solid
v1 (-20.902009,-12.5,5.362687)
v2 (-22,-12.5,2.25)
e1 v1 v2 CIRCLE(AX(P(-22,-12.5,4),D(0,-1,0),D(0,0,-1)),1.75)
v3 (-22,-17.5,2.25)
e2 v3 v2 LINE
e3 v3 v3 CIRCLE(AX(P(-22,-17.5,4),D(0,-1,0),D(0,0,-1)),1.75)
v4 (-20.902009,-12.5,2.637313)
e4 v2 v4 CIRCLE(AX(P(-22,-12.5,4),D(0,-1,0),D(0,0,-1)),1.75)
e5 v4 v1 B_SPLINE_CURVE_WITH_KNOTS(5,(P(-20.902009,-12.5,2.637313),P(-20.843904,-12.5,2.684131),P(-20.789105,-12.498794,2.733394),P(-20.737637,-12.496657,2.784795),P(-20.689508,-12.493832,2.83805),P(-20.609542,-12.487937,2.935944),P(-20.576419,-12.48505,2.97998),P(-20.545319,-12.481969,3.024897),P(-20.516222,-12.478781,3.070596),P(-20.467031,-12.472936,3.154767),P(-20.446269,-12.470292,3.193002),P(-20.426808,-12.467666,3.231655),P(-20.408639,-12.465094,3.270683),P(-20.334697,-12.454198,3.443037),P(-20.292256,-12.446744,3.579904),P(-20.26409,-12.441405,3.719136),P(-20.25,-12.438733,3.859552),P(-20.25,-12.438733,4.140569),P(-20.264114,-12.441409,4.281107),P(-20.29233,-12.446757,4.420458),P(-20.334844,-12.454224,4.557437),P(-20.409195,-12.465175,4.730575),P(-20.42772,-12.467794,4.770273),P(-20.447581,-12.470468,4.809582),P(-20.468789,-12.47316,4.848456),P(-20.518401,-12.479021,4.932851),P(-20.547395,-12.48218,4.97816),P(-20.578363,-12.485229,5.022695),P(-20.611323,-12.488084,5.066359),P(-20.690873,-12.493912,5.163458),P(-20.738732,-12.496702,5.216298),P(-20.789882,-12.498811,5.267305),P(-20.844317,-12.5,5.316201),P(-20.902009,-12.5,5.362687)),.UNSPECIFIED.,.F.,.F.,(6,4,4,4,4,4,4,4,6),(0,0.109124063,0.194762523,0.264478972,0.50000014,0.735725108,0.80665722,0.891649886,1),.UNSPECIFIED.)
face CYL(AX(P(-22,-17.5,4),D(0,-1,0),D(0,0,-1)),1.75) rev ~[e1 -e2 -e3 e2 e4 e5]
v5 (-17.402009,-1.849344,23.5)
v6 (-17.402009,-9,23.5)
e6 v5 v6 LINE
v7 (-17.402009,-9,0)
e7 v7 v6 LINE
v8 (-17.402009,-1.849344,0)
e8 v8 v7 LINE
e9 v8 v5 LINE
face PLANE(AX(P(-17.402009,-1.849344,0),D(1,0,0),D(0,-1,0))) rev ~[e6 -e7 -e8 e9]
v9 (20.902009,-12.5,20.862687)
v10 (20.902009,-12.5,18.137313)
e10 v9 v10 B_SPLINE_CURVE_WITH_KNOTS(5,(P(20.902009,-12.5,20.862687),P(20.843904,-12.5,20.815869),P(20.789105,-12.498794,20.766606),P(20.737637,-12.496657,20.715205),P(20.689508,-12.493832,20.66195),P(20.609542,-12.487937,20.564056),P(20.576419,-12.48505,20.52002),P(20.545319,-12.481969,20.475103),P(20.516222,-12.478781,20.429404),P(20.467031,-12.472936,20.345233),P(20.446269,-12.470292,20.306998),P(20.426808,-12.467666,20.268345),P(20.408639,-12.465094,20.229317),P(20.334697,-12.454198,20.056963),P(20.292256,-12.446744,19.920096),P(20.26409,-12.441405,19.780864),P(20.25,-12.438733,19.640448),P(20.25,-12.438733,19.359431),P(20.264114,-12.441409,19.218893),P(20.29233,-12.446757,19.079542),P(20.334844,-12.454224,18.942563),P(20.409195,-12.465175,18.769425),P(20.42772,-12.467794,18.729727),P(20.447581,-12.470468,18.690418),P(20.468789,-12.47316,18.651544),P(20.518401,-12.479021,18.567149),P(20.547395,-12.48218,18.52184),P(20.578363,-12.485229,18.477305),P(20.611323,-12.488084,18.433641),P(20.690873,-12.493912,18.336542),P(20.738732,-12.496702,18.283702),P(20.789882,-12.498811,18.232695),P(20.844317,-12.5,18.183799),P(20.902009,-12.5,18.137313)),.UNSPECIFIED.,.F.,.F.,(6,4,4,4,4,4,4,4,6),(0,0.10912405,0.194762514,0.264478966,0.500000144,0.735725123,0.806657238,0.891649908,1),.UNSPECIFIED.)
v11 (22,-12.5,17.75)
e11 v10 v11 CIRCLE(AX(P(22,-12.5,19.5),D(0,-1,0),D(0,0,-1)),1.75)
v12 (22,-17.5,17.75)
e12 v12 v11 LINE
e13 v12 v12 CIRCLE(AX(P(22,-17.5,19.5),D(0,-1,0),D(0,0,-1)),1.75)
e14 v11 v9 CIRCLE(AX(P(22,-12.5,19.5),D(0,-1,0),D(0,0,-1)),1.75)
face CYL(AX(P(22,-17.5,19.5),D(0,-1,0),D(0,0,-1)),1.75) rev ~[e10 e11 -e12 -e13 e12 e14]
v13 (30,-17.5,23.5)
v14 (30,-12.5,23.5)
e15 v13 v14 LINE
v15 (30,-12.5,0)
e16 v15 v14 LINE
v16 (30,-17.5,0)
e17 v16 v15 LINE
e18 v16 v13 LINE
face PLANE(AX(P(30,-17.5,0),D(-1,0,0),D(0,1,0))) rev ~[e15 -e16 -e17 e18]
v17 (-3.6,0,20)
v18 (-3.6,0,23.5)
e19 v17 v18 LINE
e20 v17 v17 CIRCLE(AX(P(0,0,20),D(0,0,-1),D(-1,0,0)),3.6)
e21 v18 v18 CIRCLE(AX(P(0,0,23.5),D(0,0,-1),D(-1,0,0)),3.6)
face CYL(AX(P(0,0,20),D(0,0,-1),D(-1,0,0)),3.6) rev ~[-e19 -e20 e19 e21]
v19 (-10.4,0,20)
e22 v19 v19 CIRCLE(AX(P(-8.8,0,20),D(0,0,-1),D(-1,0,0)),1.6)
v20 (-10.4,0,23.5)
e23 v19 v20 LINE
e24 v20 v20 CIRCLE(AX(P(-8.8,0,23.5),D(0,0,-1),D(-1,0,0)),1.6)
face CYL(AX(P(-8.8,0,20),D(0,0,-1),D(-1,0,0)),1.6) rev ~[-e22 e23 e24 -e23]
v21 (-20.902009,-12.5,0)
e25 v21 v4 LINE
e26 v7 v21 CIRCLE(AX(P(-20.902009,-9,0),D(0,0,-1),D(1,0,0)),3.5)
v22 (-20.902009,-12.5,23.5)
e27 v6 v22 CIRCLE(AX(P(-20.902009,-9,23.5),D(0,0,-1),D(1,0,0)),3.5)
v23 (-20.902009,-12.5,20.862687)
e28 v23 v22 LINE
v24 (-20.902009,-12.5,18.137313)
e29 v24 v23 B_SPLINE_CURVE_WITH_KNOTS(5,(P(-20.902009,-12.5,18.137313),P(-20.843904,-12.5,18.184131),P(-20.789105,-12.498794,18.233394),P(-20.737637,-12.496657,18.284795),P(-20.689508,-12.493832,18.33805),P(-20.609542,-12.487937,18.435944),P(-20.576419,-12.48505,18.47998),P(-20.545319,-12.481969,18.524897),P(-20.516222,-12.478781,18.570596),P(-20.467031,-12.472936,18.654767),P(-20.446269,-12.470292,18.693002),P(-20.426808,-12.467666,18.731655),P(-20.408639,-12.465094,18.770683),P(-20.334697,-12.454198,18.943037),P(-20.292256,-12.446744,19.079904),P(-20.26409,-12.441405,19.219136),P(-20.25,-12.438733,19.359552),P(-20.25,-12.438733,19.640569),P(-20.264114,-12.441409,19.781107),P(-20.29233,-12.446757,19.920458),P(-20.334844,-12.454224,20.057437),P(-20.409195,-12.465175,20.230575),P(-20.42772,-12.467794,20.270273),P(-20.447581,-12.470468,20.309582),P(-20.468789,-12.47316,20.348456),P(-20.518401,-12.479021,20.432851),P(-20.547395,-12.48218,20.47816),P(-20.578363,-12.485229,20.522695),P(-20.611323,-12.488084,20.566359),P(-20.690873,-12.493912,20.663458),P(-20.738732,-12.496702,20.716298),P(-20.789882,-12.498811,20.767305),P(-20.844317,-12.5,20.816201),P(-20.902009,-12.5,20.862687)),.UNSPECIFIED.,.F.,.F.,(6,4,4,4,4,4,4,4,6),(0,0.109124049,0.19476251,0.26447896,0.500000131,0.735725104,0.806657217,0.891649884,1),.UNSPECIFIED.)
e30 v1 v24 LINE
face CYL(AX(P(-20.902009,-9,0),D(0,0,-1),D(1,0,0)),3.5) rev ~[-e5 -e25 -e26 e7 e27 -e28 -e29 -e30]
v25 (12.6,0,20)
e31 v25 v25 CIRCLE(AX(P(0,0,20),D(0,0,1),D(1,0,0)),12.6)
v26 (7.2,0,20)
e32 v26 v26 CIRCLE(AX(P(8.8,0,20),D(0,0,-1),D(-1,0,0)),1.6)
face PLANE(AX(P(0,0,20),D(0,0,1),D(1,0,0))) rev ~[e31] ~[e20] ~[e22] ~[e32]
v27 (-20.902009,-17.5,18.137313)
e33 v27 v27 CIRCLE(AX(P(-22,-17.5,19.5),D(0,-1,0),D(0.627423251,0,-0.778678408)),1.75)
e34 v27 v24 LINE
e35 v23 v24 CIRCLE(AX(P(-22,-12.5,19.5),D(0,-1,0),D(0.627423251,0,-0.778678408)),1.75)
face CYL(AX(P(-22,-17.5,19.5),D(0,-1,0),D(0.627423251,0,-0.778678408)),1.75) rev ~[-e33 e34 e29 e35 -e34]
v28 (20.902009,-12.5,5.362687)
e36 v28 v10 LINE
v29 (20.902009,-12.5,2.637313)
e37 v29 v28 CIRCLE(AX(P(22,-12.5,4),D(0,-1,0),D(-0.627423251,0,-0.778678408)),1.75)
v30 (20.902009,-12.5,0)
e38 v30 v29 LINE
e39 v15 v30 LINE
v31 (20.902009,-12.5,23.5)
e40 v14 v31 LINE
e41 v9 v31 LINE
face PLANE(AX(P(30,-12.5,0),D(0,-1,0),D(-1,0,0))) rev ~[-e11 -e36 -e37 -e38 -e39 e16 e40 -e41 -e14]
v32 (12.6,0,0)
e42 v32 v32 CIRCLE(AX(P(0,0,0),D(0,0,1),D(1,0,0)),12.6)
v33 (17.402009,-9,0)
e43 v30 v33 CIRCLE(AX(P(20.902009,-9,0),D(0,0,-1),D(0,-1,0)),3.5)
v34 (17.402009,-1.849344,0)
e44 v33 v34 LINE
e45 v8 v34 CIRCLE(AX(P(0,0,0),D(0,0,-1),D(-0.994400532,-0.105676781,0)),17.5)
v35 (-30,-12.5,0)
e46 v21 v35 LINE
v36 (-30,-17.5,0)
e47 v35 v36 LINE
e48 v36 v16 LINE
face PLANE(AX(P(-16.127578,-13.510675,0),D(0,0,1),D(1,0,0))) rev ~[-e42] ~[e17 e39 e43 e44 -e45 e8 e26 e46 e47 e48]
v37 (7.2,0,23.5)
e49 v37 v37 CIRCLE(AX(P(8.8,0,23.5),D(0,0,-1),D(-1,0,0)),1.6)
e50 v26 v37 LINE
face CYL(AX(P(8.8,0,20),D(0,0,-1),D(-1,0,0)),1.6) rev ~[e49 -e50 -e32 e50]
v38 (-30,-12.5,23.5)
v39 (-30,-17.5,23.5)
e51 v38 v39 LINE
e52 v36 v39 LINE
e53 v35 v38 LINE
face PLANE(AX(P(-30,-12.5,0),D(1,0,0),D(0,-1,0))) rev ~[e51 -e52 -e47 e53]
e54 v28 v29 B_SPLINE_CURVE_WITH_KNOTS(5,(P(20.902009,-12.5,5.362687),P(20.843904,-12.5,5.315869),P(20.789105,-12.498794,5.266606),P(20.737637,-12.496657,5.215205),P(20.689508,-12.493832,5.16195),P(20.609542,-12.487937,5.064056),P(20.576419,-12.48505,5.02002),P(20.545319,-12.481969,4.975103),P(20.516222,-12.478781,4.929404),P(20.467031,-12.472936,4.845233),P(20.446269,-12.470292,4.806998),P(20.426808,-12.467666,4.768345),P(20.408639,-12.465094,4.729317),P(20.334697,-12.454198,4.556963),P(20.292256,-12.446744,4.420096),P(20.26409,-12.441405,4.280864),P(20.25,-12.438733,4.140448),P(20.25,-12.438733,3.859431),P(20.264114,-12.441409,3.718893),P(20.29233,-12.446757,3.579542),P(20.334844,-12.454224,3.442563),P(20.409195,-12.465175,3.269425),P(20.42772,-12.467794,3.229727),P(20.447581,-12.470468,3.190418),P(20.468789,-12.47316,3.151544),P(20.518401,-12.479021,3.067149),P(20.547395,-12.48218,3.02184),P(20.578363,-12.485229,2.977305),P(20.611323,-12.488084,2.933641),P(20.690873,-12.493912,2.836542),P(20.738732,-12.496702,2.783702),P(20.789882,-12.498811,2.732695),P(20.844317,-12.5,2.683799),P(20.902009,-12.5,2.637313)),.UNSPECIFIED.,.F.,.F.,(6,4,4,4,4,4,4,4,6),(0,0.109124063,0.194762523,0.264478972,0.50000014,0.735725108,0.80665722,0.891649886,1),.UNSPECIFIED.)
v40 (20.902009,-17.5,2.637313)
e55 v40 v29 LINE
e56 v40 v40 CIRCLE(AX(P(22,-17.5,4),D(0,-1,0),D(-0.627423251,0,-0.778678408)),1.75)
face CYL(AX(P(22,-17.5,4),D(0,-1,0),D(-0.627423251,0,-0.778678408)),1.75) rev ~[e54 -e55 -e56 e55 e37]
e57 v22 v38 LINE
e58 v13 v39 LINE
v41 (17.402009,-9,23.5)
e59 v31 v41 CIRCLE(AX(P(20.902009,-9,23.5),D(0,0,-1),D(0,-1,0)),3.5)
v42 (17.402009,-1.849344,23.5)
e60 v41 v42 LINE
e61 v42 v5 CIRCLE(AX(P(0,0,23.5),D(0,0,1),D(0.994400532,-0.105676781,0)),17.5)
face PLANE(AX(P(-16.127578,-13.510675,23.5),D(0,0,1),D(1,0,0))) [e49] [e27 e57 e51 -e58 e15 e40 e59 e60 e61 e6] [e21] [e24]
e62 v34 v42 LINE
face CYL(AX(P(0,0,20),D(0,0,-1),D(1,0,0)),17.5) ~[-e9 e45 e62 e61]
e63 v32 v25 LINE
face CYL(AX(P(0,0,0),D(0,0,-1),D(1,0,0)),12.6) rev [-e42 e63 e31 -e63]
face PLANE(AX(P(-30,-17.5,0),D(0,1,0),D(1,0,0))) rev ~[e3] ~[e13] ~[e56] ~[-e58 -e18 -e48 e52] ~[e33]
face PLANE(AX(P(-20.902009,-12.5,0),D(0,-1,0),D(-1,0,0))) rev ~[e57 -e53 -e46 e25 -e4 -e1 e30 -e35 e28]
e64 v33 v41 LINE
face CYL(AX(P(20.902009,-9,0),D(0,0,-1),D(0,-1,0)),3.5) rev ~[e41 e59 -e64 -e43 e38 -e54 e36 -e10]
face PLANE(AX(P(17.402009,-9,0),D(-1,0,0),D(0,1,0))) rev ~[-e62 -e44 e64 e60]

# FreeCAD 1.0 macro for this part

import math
import FreeCAD as App
import Part
import Sketcher

V = App.Vector
Q = App.Units.Quantity

doc = App.newDocument("Part")
body = doc.addObject("PartDesign::Body", "Body")

# Sketch on XY plane
sketch1 = body.newObject("Sketcher::SketchObject", "Sketch")
sketch1.AttachmentSupport = (doc.getObject("XY_Plane"), [""])
sketch1.MapMode = "FlatFace"
sketch1.addGeometry([
    Part.Circle(V(0, 0, 0), V(0, 0, 1), 18),
    Part.Circle(V(0, 0, 0), V(0, 0, 1), 13),
], False)
sketch1.addConstraint([
    Sketcher.Constraint("Coincident", 0, 3, -1, 1),
    Sketcher.Constraint("Coincident", 1, 3, -1, 1),
    Sketcher.Constraint("Diameter", 0, Q("35 mm")),
    Sketcher.Constraint("Diameter", 1, Q("25.2 mm")),
])
pad1 = body.newObject("PartDesign::Pad", "Pad")
pad1.Profile = sketch1
pad1.Length = 20

# Sketch on XY plane
sketch2 = body.newObject("Sketcher::SketchObject", "Sketch001")
sketch2.AttachmentSupport = (doc.getObject("XY_Plane"), [""])
sketch2.MapMode = "FlatFace"
sketch2.AttachmentOffset = App.Placement(V(0, 0, 20), App.Rotation())
sketch2.addGeometry(Part.Circle(V(0, 0, 0), V(0, 0, 1), 18), False)
sketch2.addConstraint([
    Sketcher.Constraint("Coincident", 0, 3, -1, 1),
    Sketcher.Constraint("Diameter", 0, Q("35 mm")),
])
pad2 = body.newObject("PartDesign::Pad", "Pad001")
pad2.Profile = sketch2
pad2.Length = 3.5

# Sketch on XY plane
sketch3 = body.newObject("Sketcher::SketchObject", "Sketch002")
sketch3.AttachmentSupport = (doc.getObject("XY_Plane"), [""])
sketch3.MapMode = "FlatFace"
sketch3.addGeometry([
    Part.LineSegment(V(-30, -12.5, 0), V(-30, -17.5, 0)),  # 0
    Part.LineSegment(V(-30, -17.5, 0), V(0, -17.5, 0)),  # 1
    Part.ArcOfCircle(Part.Circle(V(0, 0, 0), V(0, 0, 1), 17.5), math.radians(-174), math.radians(-90)),  # 2
    Part.LineSegment(V(-17.4, -1.8, 0), V(-17.4, -9, 0)),  # 3
    Part.ArcOfCircle(Part.Circle(V(-20.9, -9, 0), V(0, 0, 1), 3.5), math.radians(-90), math.radians(0)),  # 4
    Part.LineSegment(V(-20.9, -12.5, 0), V(-30, -12.5, 0)),  # 5
    Part.ArcOfCircle(Part.Circle(V(0, 0, 0), V(0, 0, 1), 17.5), math.radians(-90), math.radians(-6)),  # 6
    Part.LineSegment(V(0, -17.5, 0), V(30, -17.5, 0)),  # 7
    Part.LineSegment(V(30, -17.5, 0), V(30, -12.5, 0)),  # 8
    Part.LineSegment(V(30, -12.5, 0), V(20.9, -12.5, 0)),  # 9
    Part.ArcOfCircle(Part.Circle(V(20.9, -9, 0), V(0, 0, 1), 3.5), math.radians(-180), math.radians(-90)),  # 10
    Part.LineSegment(V(17.4, -9, 0), V(17.4, -1.8, 0)),  # 11
], False)
sketch3.addConstraint([
    Sketcher.Constraint("Coincident", 0, 2, 1, 1),
    Sketcher.Constraint("Tangent", 1, 2, 2, 2),
    Sketcher.Constraint("Coincident", 2, 1, 3, 1),
    Sketcher.Constraint("Tangent", 3, 2, 4, 2),
    Sketcher.Constraint("Tangent", 4, 1, 5, 1),
    Sketcher.Constraint("Coincident", 5, 2, 0, 1),
    Sketcher.Constraint("Tangent", 6, 1, 7, 1),
    Sketcher.Constraint("Coincident", 7, 2, 8, 1),
    Sketcher.Constraint("Coincident", 8, 2, 9, 1),
    Sketcher.Constraint("Tangent", 9, 2, 10, 2),
    Sketcher.Constraint("Tangent", 10, 1, 11, 1),
    Sketcher.Constraint("Coincident", 11, 2, 6, 2),
    Sketcher.Constraint("Vertical", 0),
    Sketcher.Constraint("Horizontal", 1),
    Sketcher.Constraint("Vertical", 3),
    Sketcher.Constraint("Horizontal", 5),
    Sketcher.Constraint("Horizontal", 7),
    Sketcher.Constraint("Vertical", 8),
    Sketcher.Constraint("Horizontal", 9),
    Sketcher.Constraint("Vertical", 11),
    Sketcher.Constraint("Coincident", 2, 3, -1, 1),
    Sketcher.Constraint("Coincident", 6, 3, -1, 1),
    Sketcher.Constraint("Equal", 2, 6),
    Sketcher.Constraint("Equal", 4, 10),
    Sketcher.Constraint("Symmetric", 4, 3, 10, 3, -2),
    Sketcher.Constraint("Equal", 1, 7),
    Sketcher.Constraint("Radius", 2, Q("17.5 mm")),
    Sketcher.Constraint("Radius", 4, Q("3.5 mm")),
    Sketcher.Constraint("DistanceX", 1, 1, 1, 2, Q("30 mm")),
    Sketcher.Constraint("DistanceY", 0, 2, 0, 1, Q("5 mm")),
    Sketcher.Constraint("DistanceX", 5, 2, 5, 1, Q("9.097991 mm")),
])
pad3 = body.newObject("PartDesign::Pad", "Pad002")
pad3.Profile = sketch3
pad3.Length = 23.5

# Sketch on XY plane
sketch4 = body.newObject("Sketcher::SketchObject", "Sketch003")
sketch4.AttachmentSupport = (doc.getObject("XY_Plane"), [""])
sketch4.MapMode = "FlatFace"
sketch4.AttachmentOffset = App.Placement(V(0, 0, 20), App.Rotation())
sketch4.addGeometry([
    Part.Circle(V(0, 0, 0), V(0, 0, 1), 3.6),
    Part.Circle(V(8.8, 0, 0), V(0, 0, 1), 1.6),
    Part.Circle(V(-8.8, 0, 0), V(0, 0, 1), 1.6),
], False)
sketch4.addConstraint([
    Sketcher.Constraint("Coincident", 0, 3, -1, 1),
    Sketcher.Constraint("Equal", 1, 2),
    Sketcher.Constraint("Symmetric", 1, 3, 2, 3, -1, 1),
    Sketcher.Constraint("PointOnObject", 1, 3, -1),
    Sketcher.Constraint("Diameter", 0, Q("7.2 mm")),
    Sketcher.Constraint("Diameter", 1, Q("3.2 mm")),
    Sketcher.Constraint("DistanceX", -1, 1, 1, 3, Q("8.8 mm")),
])
pocket1 = body.newObject("PartDesign::Pocket", "Pocket")
pocket1.Profile = sketch4
pocket1.Type = "ThroughAll"
pocket1.Reversed = True

# Sketch on XZ plane
sketch5 = body.newObject("Sketcher::SketchObject", "Sketch004")
sketch5.AttachmentSupport = (doc.getObject("XZ_Plane"), [""])
sketch5.MapMode = "FlatFace"
sketch5.AttachmentOffset = App.Placement(V(0, 0, 17.5), App.Rotation())
sketch5.addGeometry([
    Part.Circle(V(-22, 4, 0), V(0, 0, 1), 1.8),
    Part.Circle(V(22, 4, 0), V(0, 0, 1), 1.8),
    Part.Circle(V(22, 19.5, 0), V(0, 0, 1), 1.8),
    Part.Circle(V(-22, 19.5, 0), V(0, 0, 1), 1.8),
], False)
sketch5.addConstraint([
    Sketcher.Constraint("Equal", 0, 1),
    Sketcher.Constraint("Equal", 1, 2),
    Sketcher.Constraint("Equal", 2, 3),
    Sketcher.Constraint("Symmetric", 0, 3, 1, 3, -2),
    Sketcher.Constraint("Symmetric", 2, 3, 3, 3, -2),
    Sketcher.Constraint("Vertical", 1, 3, 2, 3),
    Sketcher.Constraint("Diameter", 0, Q("3.5 mm")),
    Sketcher.Constraint("DistanceX", 0, 3, -1, 1, Q("22 mm")),
    Sketcher.Constraint("DistanceY", -1, 1, 0, 3, Q("4 mm")),
    Sketcher.Constraint("DistanceY", -1, 1, 2, 3, Q("19.5 mm")),
])
pocket2 = body.newObject("PartDesign::Pocket", "Pocket001")
pocket2.Profile = sketch5
pocket2.Type = "ThroughAll"

doc.recompute()
